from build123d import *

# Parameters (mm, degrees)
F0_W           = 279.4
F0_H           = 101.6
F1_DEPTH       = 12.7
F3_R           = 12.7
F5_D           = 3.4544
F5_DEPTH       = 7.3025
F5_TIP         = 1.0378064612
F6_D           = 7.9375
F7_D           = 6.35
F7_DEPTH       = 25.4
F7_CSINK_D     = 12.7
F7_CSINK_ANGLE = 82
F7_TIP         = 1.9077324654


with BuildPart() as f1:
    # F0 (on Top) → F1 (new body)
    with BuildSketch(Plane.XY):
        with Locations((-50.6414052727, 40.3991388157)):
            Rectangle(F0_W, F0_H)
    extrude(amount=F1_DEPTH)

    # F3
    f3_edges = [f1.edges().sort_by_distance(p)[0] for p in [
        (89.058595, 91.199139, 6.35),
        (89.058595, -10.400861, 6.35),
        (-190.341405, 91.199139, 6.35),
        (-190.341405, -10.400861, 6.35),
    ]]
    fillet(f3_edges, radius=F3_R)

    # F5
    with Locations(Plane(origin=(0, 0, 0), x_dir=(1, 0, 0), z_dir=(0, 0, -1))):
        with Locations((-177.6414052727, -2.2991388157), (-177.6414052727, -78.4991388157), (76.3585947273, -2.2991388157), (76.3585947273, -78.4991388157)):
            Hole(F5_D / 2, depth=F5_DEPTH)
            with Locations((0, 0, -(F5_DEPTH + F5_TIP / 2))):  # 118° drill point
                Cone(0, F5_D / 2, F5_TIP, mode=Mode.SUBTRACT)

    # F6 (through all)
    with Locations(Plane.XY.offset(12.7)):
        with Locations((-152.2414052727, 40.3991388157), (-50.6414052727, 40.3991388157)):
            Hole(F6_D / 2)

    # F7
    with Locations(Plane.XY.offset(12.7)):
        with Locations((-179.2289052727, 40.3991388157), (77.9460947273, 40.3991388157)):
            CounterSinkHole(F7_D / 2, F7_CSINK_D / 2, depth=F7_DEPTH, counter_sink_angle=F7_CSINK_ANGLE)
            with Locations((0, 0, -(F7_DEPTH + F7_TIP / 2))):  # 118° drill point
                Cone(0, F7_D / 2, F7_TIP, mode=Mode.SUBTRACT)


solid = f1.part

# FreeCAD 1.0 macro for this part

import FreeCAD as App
import Part
import Sketcher
Q = App.Units.Quantity


def edges_at(feature, points):
    """Names of the edges that pass closest to the given points."""
    edges = feature.Shape.Edges
    near = lambda p: min(range(len(edges)), key=lambda i: edges[i].distToShape(Part.Vertex(*p))[0])
    return sorted({f"Edge{near(p) + 1}" for p in points})


def add_polygon(sketch, points):
    """Adds a closed chain of lines whose ends are joined by coincident constraints."""
    first, n = sketch.GeometryCount, len(points)
    for a, b in zip(points, points[1:] + points[:1]):
        sketch.addGeometry(Part.LineSegment(App.Vector(*a, 0), App.Vector(*b, 0)), False)
    for i in range(n):
        sketch.addConstraint(Sketcher.Constraint("Coincident", first + i, 2, first + (i + 1) % n, 1))

doc = App.newDocument("Part")
body = doc.addObject("PartDesign::Body", "Body")

# Sketch on XY plane
sketch1 = doc.addObject("Sketcher::SketchObject", "Sketch")
body.addObject(sketch1)
sketch1.AttachmentSupport = (doc.XY_Plane, [""])
sketch1.MapMode = "FlatFace"
add_polygon(sketch1, [(-190, 91), (-190, -10), (89, -10), (89, 91)])  # lines 0-3
sketch1.addConstraint(Sketcher.Constraint("Vertical", 0))
sketch1.addConstraint(Sketcher.Constraint("Horizontal", 1))
sketch1.addConstraint(Sketcher.Constraint("Vertical", 2))
sketch1.addConstraint(Sketcher.Constraint("Horizontal", 3))
sketch1.addConstraint(Sketcher.Constraint("DistanceX", 1, 1, 1, 2, Q("11 in")))
sketch1.addConstraint(Sketcher.Constraint("DistanceY", 0, 2, 0, 1, Q("4 in")))
sketch1.addConstraint(Sketcher.Constraint("DistanceY", 0, 2, -1, 1, Q("10.400861 mm")))
sketch1.addConstraint(Sketcher.Constraint("DistanceX", 0, 2, -1, 1, Q("190.341405 mm")))
pad1 = doc.addObject("PartDesign::Pad", "Pad")
body.addObject(pad1)
pad1.Profile = sketch1
pad1.Length = Q("0.5 in")
doc.recompute()

fillet = doc.addObject("PartDesign::Fillet", "Fillet")
body.addObject(fillet)
fillet.Base = (pad1, edges_at(pad1, [
    (89.059, 91.199, 6.35),
    (89.059, -10.401, 6.35),
    (-190.341, 91.199, 6.35),
    (-190.341, -10.401, 6.35),
]))
fillet.Radius = Q("0.5 in")

# Sketch on XY plane
sketch2 = doc.addObject("Sketcher::SketchObject", "Sketch001")
body.addObject(sketch2)
sketch2.AttachmentSupport = (doc.XY_Plane, [""])
sketch2.MapMode = "FlatFace"
sketch2.addGeometry(Part.Circle(App.Vector(-177.6, 2.3, 0), App.Vector(0, 0, 1), 1.7), False)
sketch2.addGeometry(Part.Circle(App.Vector(-177.6, 78.5, 0), App.Vector(0, 0, 1), 1.7), False)
sketch2.addGeometry(Part.Circle(App.Vector(76.4, 2.3, 0), App.Vector(0, 0, 1), 1.7), False)
sketch2.addGeometry(Part.Circle(App.Vector(76.4, 78.5, 0), App.Vector(0, 0, 1), 1.7), False)
sketch2.addConstraint(Sketcher.Constraint("Equal", 0, 1))
sketch2.addConstraint(Sketcher.Constraint("Equal", 1, 2))
sketch2.addConstraint(Sketcher.Constraint("Equal", 2, 3))
sketch2.addConstraint(Sketcher.Constraint("Horizontal", 0, 3, 2, 3))
sketch2.addConstraint(Sketcher.Constraint("Horizontal", 1, 3, 3, 3))
sketch2.addConstraint(Sketcher.Constraint("Vertical", 0, 3, 1, 3))
sketch2.addConstraint(Sketcher.Constraint("Vertical", 2, 3, 3, 3))
sketch2.addConstraint(Sketcher.Constraint("Diameter", 0, Q("0.136 in")))
sketch2.addConstraint(Sketcher.Constraint("DistanceY", 0, 3, 1, 3, Q("3 in")))
sketch2.addConstraint(Sketcher.Constraint("DistanceX", 0, 3, 2, 3, Q("10 in")))
sketch2.addConstraint(Sketcher.Constraint("DistanceY", -1, 1, 0, 3, Q("2.299139 mm")))
sketch2.addConstraint(Sketcher.Constraint("DistanceX", 0, 3, -1, 1, Q("177.641405 mm")))
doc.recompute()
hole = doc.addObject("PartDesign::Hole", "Hole")
body.addObject(hole)
hole.Profile = sketch2
hole.ThreadType = "None"
hole.Diameter = Q("0.136 in")
hole.DepthType = "Dimension"
hole.Depth = Q("0.2875 in")
hole.DrillPoint = "Angled"
hole.DrillPointAngle = 118
hole.Reversed = True

# Sketch on XY plane
sketch3 = doc.addObject("Sketcher::SketchObject", "Sketch002")
body.addObject(sketch3)
sketch3.AttachmentSupport = (doc.XY_Plane, [""])
sketch3.MapMode = "FlatFace"
sketch3.AttachmentOffset = App.Placement(App.Vector(0, 0, 0.5 * 25.4), App.Rotation())
sketch3.addGeometry(Part.Circle(App.Vector(-152.2, 40.4, 0), App.Vector(0, 0, 1), 4), False)
sketch3.addGeometry(Part.Circle(App.Vector(-50.6, 40.4, 0), App.Vector(0, 0, 1), 4), False)
sketch3.addConstraint(Sketcher.Constraint("Equal", 0, 1))
sketch3.addConstraint(Sketcher.Constraint("Horizontal", 0, 3, 1, 3))
sketch3.addConstraint(Sketcher.Constraint("Diameter", 0, Q("0.3125 in")))
sketch3.addConstraint(Sketcher.Constraint("DistanceX", 0, 3, 1, 3, Q("4 in")))
sketch3.addConstraint(Sketcher.Constraint("DistanceY", -1, 1, 0, 3, Q("40.399139 mm")))
sketch3.addConstraint(Sketcher.Constraint("DistanceX", 0, 3, -1, 1, Q("152.241405 mm")))
doc.recompute()
hole2 = doc.addObject("PartDesign::Hole", "Hole001")
body.addObject(hole2)
hole2.Profile = sketch3
hole2.ThreadType = "None"
hole2.Diameter = Q("0.3125 in")
hole2.DepthType = "ThroughAll"

# Sketch on XY plane
sketch4 = doc.addObject("Sketcher::SketchObject", "Sketch003")
body.addObject(sketch4)
sketch4.AttachmentSupport = (doc.XY_Plane, [""])
sketch4.MapMode = "FlatFace"
sketch4.AttachmentOffset = App.Placement(App.Vector(0, 0, 0.5 * 25.4), App.Rotation())
sketch4.addGeometry(Part.Circle(App.Vector(-179.2, 40.4, 0), App.Vector(0, 0, 1), 3.2), False)
sketch4.addGeometry(Part.Circle(App.Vector(77.9, 40.4, 0), App.Vector(0, 0, 1), 3.2), False)
sketch4.addConstraint(Sketcher.Constraint("Equal", 0, 1))
sketch4.addConstraint(Sketcher.Constraint("Horizontal", 0, 3, 1, 3))
sketch4.addConstraint(Sketcher.Constraint("Diameter", 0, Q("0.25 in")))
sketch4.addConstraint(Sketcher.Constraint("DistanceX", 0, 3, 1, 3, Q("10.125 in")))
sketch4.addConstraint(Sketcher.Constraint("DistanceY", -1, 1, 0, 3, Q("40.399139 mm")))
sketch4.addConstraint(Sketcher.Constraint("DistanceX", 0, 3, -1, 1, Q("179.228905 mm")))
doc.recompute()
hole3 = doc.addObject("PartDesign::Hole", "Hole002")
body.addObject(hole3)
hole3.Profile = sketch4
hole3.ThreadType = "None"
hole3.Diameter = Q("0.25 in")
hole3.DepthType = "Dimension"
hole3.Depth = Q("1 in")
hole3.DrillPoint = "Angled"
hole3.DrillPointAngle = 118
hole3.HoleCutType = "Countersink"
hole3.HoleCutDiameter = Q("0.5 in")
hole3.HoleCutCountersinkAngle = 82

doc.recompute()
